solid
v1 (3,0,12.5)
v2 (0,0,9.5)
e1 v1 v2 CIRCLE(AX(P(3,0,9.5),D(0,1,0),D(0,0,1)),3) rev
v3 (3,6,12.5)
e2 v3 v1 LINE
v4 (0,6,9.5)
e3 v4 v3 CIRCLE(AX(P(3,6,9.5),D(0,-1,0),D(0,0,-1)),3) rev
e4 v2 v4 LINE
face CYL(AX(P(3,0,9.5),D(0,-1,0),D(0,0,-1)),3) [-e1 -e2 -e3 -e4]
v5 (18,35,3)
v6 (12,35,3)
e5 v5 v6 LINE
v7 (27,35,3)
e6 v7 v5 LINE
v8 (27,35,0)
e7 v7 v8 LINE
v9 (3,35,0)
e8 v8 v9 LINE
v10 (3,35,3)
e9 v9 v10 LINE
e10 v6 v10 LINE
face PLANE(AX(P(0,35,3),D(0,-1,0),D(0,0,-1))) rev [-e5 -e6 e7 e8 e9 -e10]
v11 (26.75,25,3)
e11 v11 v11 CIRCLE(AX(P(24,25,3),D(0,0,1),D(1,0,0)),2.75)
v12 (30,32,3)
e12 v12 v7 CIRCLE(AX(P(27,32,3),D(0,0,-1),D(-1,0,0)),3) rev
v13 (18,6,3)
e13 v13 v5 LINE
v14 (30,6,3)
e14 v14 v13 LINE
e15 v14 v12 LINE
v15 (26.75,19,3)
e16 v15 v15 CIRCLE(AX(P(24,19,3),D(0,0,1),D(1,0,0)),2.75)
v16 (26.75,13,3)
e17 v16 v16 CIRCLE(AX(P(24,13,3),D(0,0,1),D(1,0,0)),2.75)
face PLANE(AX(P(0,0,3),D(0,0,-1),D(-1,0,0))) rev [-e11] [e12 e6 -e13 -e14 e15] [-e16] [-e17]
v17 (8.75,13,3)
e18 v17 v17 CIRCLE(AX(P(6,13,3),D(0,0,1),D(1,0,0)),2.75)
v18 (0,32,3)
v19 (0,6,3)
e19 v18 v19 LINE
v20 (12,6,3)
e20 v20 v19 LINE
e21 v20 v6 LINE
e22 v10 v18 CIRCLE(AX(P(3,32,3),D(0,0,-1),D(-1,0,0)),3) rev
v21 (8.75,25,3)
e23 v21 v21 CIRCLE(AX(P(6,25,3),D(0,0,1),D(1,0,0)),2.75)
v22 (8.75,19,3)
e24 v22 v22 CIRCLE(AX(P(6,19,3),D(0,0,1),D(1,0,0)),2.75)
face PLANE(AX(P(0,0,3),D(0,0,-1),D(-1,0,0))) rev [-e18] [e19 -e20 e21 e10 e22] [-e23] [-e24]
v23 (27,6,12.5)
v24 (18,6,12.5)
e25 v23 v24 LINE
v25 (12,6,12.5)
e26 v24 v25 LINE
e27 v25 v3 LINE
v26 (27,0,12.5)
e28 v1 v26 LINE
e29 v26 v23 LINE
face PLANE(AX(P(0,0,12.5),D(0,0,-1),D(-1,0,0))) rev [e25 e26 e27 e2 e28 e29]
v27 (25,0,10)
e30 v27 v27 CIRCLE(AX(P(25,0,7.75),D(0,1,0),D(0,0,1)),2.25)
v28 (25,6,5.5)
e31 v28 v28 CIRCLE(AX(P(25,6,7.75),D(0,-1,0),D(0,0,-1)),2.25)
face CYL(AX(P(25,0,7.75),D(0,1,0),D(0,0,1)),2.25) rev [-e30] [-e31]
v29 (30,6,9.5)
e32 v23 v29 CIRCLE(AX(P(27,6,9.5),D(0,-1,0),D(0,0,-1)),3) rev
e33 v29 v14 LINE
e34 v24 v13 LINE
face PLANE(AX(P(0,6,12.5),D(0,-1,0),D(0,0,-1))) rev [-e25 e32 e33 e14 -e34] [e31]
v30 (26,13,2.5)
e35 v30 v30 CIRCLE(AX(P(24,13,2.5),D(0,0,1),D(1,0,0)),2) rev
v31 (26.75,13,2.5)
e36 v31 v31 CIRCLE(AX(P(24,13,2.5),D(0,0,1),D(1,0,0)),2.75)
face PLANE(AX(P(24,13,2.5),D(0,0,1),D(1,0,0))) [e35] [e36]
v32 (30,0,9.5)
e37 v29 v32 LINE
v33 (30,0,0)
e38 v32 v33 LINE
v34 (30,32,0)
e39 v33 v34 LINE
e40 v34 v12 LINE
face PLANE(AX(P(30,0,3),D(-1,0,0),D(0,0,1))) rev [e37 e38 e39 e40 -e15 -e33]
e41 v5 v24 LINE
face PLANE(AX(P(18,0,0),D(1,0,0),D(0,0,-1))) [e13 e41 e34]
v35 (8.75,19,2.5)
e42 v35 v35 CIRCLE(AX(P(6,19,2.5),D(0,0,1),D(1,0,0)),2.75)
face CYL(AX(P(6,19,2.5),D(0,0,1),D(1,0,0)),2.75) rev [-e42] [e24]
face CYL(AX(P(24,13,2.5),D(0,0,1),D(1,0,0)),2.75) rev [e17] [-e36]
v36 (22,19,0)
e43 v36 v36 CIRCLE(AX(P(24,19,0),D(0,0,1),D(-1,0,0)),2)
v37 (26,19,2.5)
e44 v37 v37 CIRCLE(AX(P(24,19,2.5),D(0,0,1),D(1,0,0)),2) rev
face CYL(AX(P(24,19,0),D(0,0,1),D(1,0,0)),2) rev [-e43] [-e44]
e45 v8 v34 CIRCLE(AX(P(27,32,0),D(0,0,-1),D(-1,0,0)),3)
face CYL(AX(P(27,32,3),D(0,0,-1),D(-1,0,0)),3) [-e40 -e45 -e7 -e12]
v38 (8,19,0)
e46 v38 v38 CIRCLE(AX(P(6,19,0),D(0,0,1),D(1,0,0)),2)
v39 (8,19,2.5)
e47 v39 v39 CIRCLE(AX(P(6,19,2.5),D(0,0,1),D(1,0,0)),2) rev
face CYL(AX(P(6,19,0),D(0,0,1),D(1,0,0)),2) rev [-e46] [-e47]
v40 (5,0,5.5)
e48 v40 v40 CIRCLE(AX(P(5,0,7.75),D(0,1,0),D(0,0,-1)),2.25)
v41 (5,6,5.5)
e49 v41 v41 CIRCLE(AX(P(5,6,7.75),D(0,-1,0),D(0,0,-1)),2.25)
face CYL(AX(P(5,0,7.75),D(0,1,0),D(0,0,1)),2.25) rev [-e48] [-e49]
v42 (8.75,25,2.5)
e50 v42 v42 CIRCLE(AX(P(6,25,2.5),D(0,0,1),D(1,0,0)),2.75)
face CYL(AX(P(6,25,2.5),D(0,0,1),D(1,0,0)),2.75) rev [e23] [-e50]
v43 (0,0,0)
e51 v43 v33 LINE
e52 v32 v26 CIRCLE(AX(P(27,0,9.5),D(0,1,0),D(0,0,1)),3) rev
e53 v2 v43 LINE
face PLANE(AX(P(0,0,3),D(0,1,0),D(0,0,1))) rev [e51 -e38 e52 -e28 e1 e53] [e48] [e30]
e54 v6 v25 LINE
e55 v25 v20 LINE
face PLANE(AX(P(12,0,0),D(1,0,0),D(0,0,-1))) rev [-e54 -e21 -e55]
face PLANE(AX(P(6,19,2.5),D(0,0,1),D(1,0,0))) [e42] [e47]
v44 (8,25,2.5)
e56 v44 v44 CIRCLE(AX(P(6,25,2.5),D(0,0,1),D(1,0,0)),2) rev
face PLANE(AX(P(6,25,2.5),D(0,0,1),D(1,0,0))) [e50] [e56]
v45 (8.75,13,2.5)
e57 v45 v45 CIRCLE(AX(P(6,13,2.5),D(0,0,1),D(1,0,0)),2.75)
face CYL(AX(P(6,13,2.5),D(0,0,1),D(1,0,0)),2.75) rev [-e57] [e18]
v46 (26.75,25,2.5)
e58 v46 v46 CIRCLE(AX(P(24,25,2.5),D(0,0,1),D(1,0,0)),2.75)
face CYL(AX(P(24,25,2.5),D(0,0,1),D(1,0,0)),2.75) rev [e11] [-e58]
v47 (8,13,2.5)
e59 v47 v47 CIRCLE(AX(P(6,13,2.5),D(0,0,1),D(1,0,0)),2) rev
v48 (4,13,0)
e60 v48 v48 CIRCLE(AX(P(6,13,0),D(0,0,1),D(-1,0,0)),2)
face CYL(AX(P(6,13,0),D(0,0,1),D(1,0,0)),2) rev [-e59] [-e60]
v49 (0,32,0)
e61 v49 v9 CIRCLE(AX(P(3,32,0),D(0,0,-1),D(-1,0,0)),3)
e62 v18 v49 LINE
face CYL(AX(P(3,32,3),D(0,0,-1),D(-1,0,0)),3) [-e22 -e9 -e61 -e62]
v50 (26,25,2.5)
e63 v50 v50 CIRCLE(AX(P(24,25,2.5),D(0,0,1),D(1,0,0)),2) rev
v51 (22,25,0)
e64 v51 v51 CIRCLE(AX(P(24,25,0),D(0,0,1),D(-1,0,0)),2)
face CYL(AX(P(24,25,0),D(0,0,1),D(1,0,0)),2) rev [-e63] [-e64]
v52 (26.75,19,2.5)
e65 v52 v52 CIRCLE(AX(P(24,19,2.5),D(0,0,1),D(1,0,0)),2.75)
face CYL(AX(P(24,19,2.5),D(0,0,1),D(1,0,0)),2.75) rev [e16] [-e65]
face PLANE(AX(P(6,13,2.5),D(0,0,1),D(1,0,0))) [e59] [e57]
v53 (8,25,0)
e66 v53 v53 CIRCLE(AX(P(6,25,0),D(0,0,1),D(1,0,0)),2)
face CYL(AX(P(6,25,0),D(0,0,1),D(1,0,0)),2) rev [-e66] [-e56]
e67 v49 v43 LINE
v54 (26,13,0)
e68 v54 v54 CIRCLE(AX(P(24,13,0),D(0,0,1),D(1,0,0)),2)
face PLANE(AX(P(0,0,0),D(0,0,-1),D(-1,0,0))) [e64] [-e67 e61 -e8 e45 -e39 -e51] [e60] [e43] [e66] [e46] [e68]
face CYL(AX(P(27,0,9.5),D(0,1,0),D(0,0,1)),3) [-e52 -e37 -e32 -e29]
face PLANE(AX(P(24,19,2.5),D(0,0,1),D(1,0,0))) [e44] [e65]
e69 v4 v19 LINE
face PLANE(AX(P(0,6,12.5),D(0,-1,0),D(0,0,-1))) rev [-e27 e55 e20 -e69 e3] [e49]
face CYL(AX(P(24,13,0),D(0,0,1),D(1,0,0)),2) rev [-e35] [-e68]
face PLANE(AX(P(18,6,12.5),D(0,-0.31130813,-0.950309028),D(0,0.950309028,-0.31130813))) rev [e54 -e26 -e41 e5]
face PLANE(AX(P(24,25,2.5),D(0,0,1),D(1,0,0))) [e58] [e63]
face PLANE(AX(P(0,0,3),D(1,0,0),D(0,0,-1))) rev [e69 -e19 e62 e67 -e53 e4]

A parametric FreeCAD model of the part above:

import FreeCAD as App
import Part
import Sketcher
from FreeCAD import Vector


def edges_at(feature, points):
    """Names of the edges that pass closest to the given points."""
    edges = feature.Shape.Edges
    near = lambda p: min(range(len(edges)), key=lambda i: edges[i].distToShape(Part.Vertex(*p))[0])
    return sorted({f"Edge{near(p) + 1}" for p in points})

doc = App.newDocument("Part")
body = doc.addObject("PartDesign::Body", "Body")

sketch1 = body.newObject("Sketcher::SketchObject", "Sketch")
sketch1.AttachmentSupport = (doc.getObject("XY_Plane"), [""])
sketch1.MapMode = "FlatFace"
sketch1.addGeometry([
    Part.LineSegment(Vector(0, 35, 0), Vector(0, 0, 0)),
    Part.LineSegment(Vector(0, 0, 0), Vector(30, 0, 0)),
    Part.LineSegment(Vector(30, 0, 0), Vector(30, 35, 0)),
    Part.LineSegment(Vector(30, 35, 0), Vector(0, 35, 0)),
], False)
sketch1.addConstraint([
    Sketcher.Constraint("Coincident", 0, 2, 1, 1),
    Sketcher.Constraint("Coincident", 1, 2, 2, 1),
    Sketcher.Constraint("Coincident", 2, 2, 3, 1),
    Sketcher.Constraint("Coincident", 3, 2, 0, 1),
    Sketcher.Constraint("Vertical", 0),
    Sketcher.Constraint("Horizontal", 1),
    Sketcher.Constraint("Vertical", 2),
    Sketcher.Constraint("Horizontal", 3),
    Sketcher.Constraint("Coincident", 0, 2, -1, 1),
    Sketcher.Constraint("DistanceX", 1, 1, 1, 2, 30.0),
    Sketcher.Constraint("DistanceY", 0, 2, 0, 1, 35.0),
])
pad1 = body.newObject("PartDesign::Pad", "Pad")
pad1.Profile = sketch1
pad1.Length = 3

sketch2 = body.newObject("Sketcher::SketchObject", "Sketch001")
sketch2.AttachmentSupport = (doc.getObject("XY_Plane"), [""])
sketch2.MapMode = "FlatFace"
sketch2.AttachmentOffset = App.Placement(Vector(0, 0, 3), App.Rotation())
sketch2.addGeometry([
    Part.Circle(Vector(6, 25, 0), Vector(0, 0, 1), 2),
    Part.Circle(Vector(24, 25, 0), Vector(0, 0, 1), 2),
    Part.Circle(Vector(24, 13, 0), Vector(0, 0, 1), 2),
    Part.Circle(Vector(6, 13, 0), Vector(0, 0, 1), 2),
    Part.Circle(Vector(6, 19, 0), Vector(0, 0, 1), 2),
    Part.Circle(Vector(24, 19, 0), Vector(0, 0, 1), 2),
], False)
sketch2.addConstraint([
    Sketcher.Constraint("Equal", 0, 1),
    Sketcher.Constraint("Equal", 1, 2),
    Sketcher.Constraint("Equal", 2, 3),
    Sketcher.Constraint("Equal", 3, 4),
    Sketcher.Constraint("Equal", 4, 5),
    Sketcher.Constraint("Horizontal", 0, 3, 1, 3),
    Sketcher.Constraint("Horizontal", 2, 3, 3, 3),
    Sketcher.Constraint("Horizontal", 4, 3, 5, 3),
    Sketcher.Constraint("Vertical", 1, 3, 2, 3),
    Sketcher.Constraint("Vertical", 0, 3, 3, 3),
    Sketcher.Constraint("Vertical", 3, 3, 4, 3),
    Sketcher.Constraint("Vertical", 2, 3, 5, 3),
    Sketcher.Constraint("Diameter", 0, 4.0),
    Sketcher.Constraint("DistanceX", -1, 1, 0, 3, 6.0),
    Sketcher.Constraint("DistanceY", -1, 1, 0, 3, 25.0),
    Sketcher.Constraint("DistanceX", -1, 1, 1, 3, 24.0),
    Sketcher.Constraint("DistanceY", -1, 1, 2, 3, 13.0),
    Sketcher.Constraint("DistanceY", -1, 1, 4, 3, 19.0),
])
pocket1 = body.newObject("PartDesign::Pocket", "Pocket")
pocket1.Profile = sketch2
pocket1.Type = "ThroughAll"
pocket1.Midplane = True

sketch3 = body.newObject("Sketcher::SketchObject", "Sketch002")
sketch3.AttachmentSupport = (doc.getObject("XY_Plane"), [""])
sketch3.MapMode = "FlatFace"
sketch3.AttachmentOffset = App.Placement(Vector(0, 0, 3), App.Rotation())
sketch3.addGeometry([
    Part.LineSegment(Vector(0, 6, 0), Vector(0, 0, 0)),
    Part.LineSegment(Vector(0, 0, 0), Vector(30, 0, 0)),
    Part.LineSegment(Vector(30, 0, 0), Vector(30, 6, 0)),
    Part.LineSegment(Vector(30, 6, 0), Vector(0, 6, 0)),
], False)
sketch3.addConstraint([
    Sketcher.Constraint("Coincident", 0, 2, 1, 1),
    Sketcher.Constraint("Coincident", 1, 2, 2, 1),
    Sketcher.Constraint("Coincident", 2, 2, 3, 1),
    Sketcher.Constraint("Coincident", 3, 2, 0, 1),
    Sketcher.Constraint("Vertical", 0),
    Sketcher.Constraint("Horizontal", 1),
    Sketcher.Constraint("Vertical", 2),
    Sketcher.Constraint("Horizontal", 3),
    Sketcher.Constraint("Coincident", 0, 2, -1, 1),
    Sketcher.Constraint("DistanceX", 1, 1, 1, 2, 30.0),
    Sketcher.Constraint("DistanceY", 0, 2, 0, 1, 6.0),
])
pad2 = body.newObject("PartDesign::Pad", "Pad001")
pad2.Profile = sketch3
pad2.Length = 9.5

sketch4 = body.newObject("Sketcher::SketchObject", "Sketch003")
sketch4.AttachmentSupport = (doc.getObject("XZ_Plane"), [""])
sketch4.MapMode = "FlatFace"
sketch4.AttachmentOffset = App.Placement(Vector(0, 0, -6), App.Rotation())
sketch4.addGeometry([
    Part.Circle(Vector(25, 7.8, 0), Vector(0, 0, 1), 2.2),
    Part.Circle(Vector(5, 7.8, 0), Vector(0, 0, 1), 2.2),
], False)
sketch4.addConstraint([
    Sketcher.Constraint("Equal", 0, 1),
    Sketcher.Constraint("Horizontal", 0, 3, 1, 3),
    Sketcher.Constraint("Diameter", 0, 4.5),
    Sketcher.Constraint("DistanceX", -1, 1, 0, 3, 25.0),
    Sketcher.Constraint("DistanceX", -1, 1, 1, 3, 5.0),
    Sketcher.Constraint("DistanceY", -1, 1, 0, 3, 7.75),
])
pocket2 = body.newObject("PartDesign::Pocket", "Pocket001")
pocket2.Profile = sketch4
pocket2.Type = "ThroughAll"
pocket2.Midplane = True

sketch5 = body.newObject("Sketcher::SketchObject", "Sketch004")
sketch5.AttachmentSupport = (doc.getObject("YZ_Plane"), [""])
sketch5.MapMode = "FlatFace"
sketch5.AttachmentOffset = App.Placement(Vector(0, 0, 12), App.Rotation())
sketch5.addGeometry([
    Part.LineSegment(Vector(35, 3, 0), Vector(6, 12, 0)),
    Part.LineSegment(Vector(6, 12, 0), Vector(6, 3, 0)),
    Part.LineSegment(Vector(6, 3, 0), Vector(35, 3, 0)),
], False)
sketch5.addConstraint([
    Sketcher.Constraint("Coincident", 0, 2, 1, 1),
    Sketcher.Constraint("Coincident", 1, 2, 2, 1),
    Sketcher.Constraint("Coincident", 2, 2, 0, 1),
    Sketcher.Constraint("Vertical", 1),
    Sketcher.Constraint("Horizontal", 2),
    Sketcher.Constraint("DistanceX", 2, 1, 2, 2, 29.0),
    Sketcher.Constraint("DistanceY", 1, 2, 1, 1, 9.5),
    Sketcher.Constraint("DistanceX", -1, 1, 0, 2, 6.0),
    Sketcher.Constraint("DistanceY", -1, 1, 1, 2, 3.0),
])
pad3 = body.newObject("PartDesign::Pad", "Pad002")
pad3.Profile = sketch5
pad3.Length = 6
doc.recompute()

fillet = body.newObject("PartDesign::Fillet", "Fillet")
fillet.Base = (pad3, edges_at(pad3, [
    (0, 3, 12.5),
    (30, 3, 12.5),
    (0, 35, 1.5),
    (30, 35, 1.5),
]))
fillet.Radius = 3

sketch6 = body.newObject("Sketcher::SketchObject", "Sketch005")
sketch6.AttachmentSupport = (doc.getObject("XY_Plane"), [""])
sketch6.MapMode = "FlatFace"
sketch6.AttachmentOffset = App.Placement(Vector(0, 0, 3), App.Rotation())
sketch6.addGeometry([
    Part.Circle(Vector(24, 25, 0), Vector(0, 0, 1), 2.8),
    Part.Circle(Vector(24, 19, 0), Vector(0, 0, 1), 2.8),
    Part.Circle(Vector(24, 13, 0), Vector(0, 0, 1), 2.8),
    Part.Circle(Vector(6, 13, 0), Vector(0, 0, 1), 2.8),
    Part.Circle(Vector(6, 19, 0), Vector(0, 0, 1), 2.8),
    Part.Circle(Vector(6, 25, 0), Vector(0, 0, 1), 2.8),
], False)
sketch6.addConstraint([
    Sketcher.Constraint("Equal", 0, 1),
    Sketcher.Constraint("Equal", 1, 2),
    Sketcher.Constraint("Equal", 2, 3),
    Sketcher.Constraint("Equal", 3, 4),
    Sketcher.Constraint("Equal", 4, 5),
    Sketcher.Constraint("Horizontal", 2, 3, 3, 3),
    Sketcher.Constraint("Horizontal", 1, 3, 4, 3),
    Sketcher.Constraint("Horizontal", 0, 3, 5, 3),
    Sketcher.Constraint("Vertical", 0, 3, 1, 3),
    Sketcher.Constraint("Vertical", 1, 3, 2, 3),
    Sketcher.Constraint("Vertical", 3, 3, 4, 3),
    Sketcher.Constraint("Vertical", 4, 3, 5, 3),
    Sketcher.Constraint("Diameter", 0, 5.5),
    Sketcher.Constraint("DistanceX", -1, 1, 0, 3, 24.0),
    Sketcher.Constraint("DistanceY", -1, 1, 0, 3, 25.0),
    Sketcher.Constraint("DistanceY", -1, 1, 1, 3, 19.0),
    Sketcher.Constraint("DistanceY", -1, 1, 2, 3, 13.0),
    Sketcher.Constraint("DistanceX", -1, 1, 3, 3, 6.0),
])
pocket3 = body.newObject("PartDesign::Pocket", "Pocket002")
pocket3.Profile = sketch6
pocket3.Length = 0.5

doc.recompute()
